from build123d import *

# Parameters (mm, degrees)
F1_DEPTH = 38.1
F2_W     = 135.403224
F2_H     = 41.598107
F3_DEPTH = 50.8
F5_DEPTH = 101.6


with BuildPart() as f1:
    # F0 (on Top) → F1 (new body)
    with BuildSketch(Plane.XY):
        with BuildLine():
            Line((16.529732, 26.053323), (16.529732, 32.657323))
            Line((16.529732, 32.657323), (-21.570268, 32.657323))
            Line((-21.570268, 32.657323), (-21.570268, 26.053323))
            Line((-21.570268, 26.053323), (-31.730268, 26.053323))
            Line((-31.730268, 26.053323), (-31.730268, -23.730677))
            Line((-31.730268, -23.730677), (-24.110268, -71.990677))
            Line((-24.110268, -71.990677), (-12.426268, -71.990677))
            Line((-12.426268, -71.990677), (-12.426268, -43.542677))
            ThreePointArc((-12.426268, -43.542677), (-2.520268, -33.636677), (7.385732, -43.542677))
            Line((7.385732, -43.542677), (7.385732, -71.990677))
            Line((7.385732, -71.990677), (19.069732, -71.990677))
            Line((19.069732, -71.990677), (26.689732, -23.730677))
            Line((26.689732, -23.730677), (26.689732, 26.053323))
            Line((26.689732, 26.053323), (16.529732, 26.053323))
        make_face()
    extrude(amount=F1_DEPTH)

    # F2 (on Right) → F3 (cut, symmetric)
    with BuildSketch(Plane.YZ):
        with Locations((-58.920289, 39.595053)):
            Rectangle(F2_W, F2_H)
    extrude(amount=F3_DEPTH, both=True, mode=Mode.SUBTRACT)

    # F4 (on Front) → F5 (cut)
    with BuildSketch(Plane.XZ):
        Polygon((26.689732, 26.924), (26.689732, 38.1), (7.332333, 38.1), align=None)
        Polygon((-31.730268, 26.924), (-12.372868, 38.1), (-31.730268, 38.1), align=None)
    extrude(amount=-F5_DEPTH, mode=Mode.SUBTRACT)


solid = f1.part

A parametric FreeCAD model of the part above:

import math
import FreeCAD as App
import Part
import Sketcher
Q = App.Units.Quantity

doc = App.newDocument("Part")
body = doc.addObject("PartDesign::Body", "Body")

sketch1 = body.newObject("Sketcher::SketchObject", "Sketch")
sketch1.AttachmentSupport = (doc.getObject("XY_Plane"), [""])
sketch1.MapMode = "FlatFace"
sketch1.addGeometry(Part.LineSegment(App.Vector(17, 26, 0), App.Vector(17, 33, 0)), False)
sketch1.addGeometry(Part.LineSegment(App.Vector(17, 33, 0), App.Vector(-22, 33, 0)), False)
sketch1.addGeometry(Part.LineSegment(App.Vector(-22, 33, 0), App.Vector(-22, 26, 0)), False)
sketch1.addGeometry(Part.LineSegment(App.Vector(-22, 26, 0), App.Vector(-32, 26, 0)), False)
sketch1.addGeometry(Part.LineSegment(App.Vector(-32, 26, 0), App.Vector(-32, -24, 0)), False)
sketch1.addGeometry(Part.LineSegment(App.Vector(-32, -24, 0), App.Vector(-24, -72, 0)), False)
sketch1.addGeometry(Part.LineSegment(App.Vector(-24, -72, 0), App.Vector(-12, -72, 0)), False)
sketch1.addGeometry(Part.LineSegment(App.Vector(-12, -72, 0), App.Vector(-12, -44, 0)), False)
sketch1.addGeometry(Part.ArcOfCircle(Part.Circle(App.Vector(-3, -44, 0), App.Vector(0, 0, 1), 10), math.radians(0), math.radians(180)), False)
sketch1.addGeometry(Part.LineSegment(App.Vector(7, -44, 0), App.Vector(7, -72, 0)), False)
sketch1.addGeometry(Part.LineSegment(App.Vector(7, -72, 0), App.Vector(19, -72, 0)), False)
sketch1.addGeometry(Part.LineSegment(App.Vector(19, -72, 0), App.Vector(27, -24, 0)), False)
sketch1.addGeometry(Part.LineSegment(App.Vector(27, -24, 0), App.Vector(27, 26, 0)), False)
sketch1.addGeometry(Part.LineSegment(App.Vector(27, 26, 0), App.Vector(17, 26, 0)), False)
sketch1.addConstraint(Sketcher.Constraint("Coincident", 0, 2, 1, 1))
sketch1.addConstraint(Sketcher.Constraint("Coincident", 1, 2, 2, 1))
sketch1.addConstraint(Sketcher.Constraint("Coincident", 2, 2, 3, 1))
sketch1.addConstraint(Sketcher.Constraint("Coincident", 3, 2, 4, 1))
sketch1.addConstraint(Sketcher.Constraint("Coincident", 4, 2, 5, 1))
sketch1.addConstraint(Sketcher.Constraint("Coincident", 5, 2, 6, 1))
sketch1.addConstraint(Sketcher.Constraint("Coincident", 6, 2, 7, 1))
sketch1.addConstraint(Sketcher.Constraint("Tangent", 7, 2, 8, 2))
sketch1.addConstraint(Sketcher.Constraint("Tangent", 8, 1, 9, 1))
sketch1.addConstraint(Sketcher.Constraint("Coincident", 9, 2, 10, 1))
sketch1.addConstraint(Sketcher.Constraint("Coincident", 10, 2, 11, 1))
sketch1.addConstraint(Sketcher.Constraint("Coincident", 11, 2, 12, 1))
sketch1.addConstraint(Sketcher.Constraint("Coincident", 12, 2, 13, 1))
sketch1.addConstraint(Sketcher.Constraint("Coincident", 13, 2, 0, 1))
sketch1.addConstraint(Sketcher.Constraint("Vertical", 0))
sketch1.addConstraint(Sketcher.Constraint("Horizontal", 1))
sketch1.addConstraint(Sketcher.Constraint("Vertical", 2))
sketch1.addConstraint(Sketcher.Constraint("Horizontal", 3))
sketch1.addConstraint(Sketcher.Constraint("Vertical", 4))
sketch1.addConstraint(Sketcher.Constraint("Horizontal", 6))
sketch1.addConstraint(Sketcher.Constraint("Vertical", 7))
sketch1.addConstraint(Sketcher.Constraint("Vertical", 9))
sketch1.addConstraint(Sketcher.Constraint("Horizontal", 10))
sketch1.addConstraint(Sketcher.Constraint("Vertical", 12))
sketch1.addConstraint(Sketcher.Constraint("Horizontal", 13))
sketch1.addConstraint(Sketcher.Constraint("Horizontal", 6, 2, 9, 2))
sketch1.addConstraint(Sketcher.Constraint("Horizontal", 4, 2, 11, 2))
sketch1.addConstraint(Sketcher.Constraint("Horizontal", 3, 2, 12, 2))
sketch1.addConstraint(Sketcher.Constraint("Equal", 6, 10))
sketch1.addConstraint(Sketcher.Constraint("Equal", 3, 13))
sketch1.addConstraint(Sketcher.Constraint("Equal", 5, 11))
sketch1.addConstraint(Sketcher.Constraint("Radius", 8, Q("0.39 in")))
sketch1.addConstraint(Sketcher.Constraint("DistanceX", 1, 2, 1, 1, Q("1.5 in")))
sketch1.addConstraint(Sketcher.Constraint("DistanceX", 3, 2, 3, 1, Q("0.4 in")))
sketch1.addConstraint(Sketcher.Constraint("DistanceY", 8, 3, 0, 2, Q("3 in")))
sketch1.addConstraint(Sketcher.Constraint("DistanceX", 6, 1, 6, 2, Q("0.46 in")))
sketch1.addConstraint(Sketcher.Constraint("DistanceY", 0, 1, 0, 2, Q("0.26 in")))
sketch1.addConstraint(Sketcher.Constraint("DistanceY", 4, 2, 4, 1, Q("1.96 in")))
sketch1.addConstraint(Sketcher.Constraint("DistanceY", 7, 1, 7, 2, Q("1.12 in")))
sketch1.addConstraint(Sketcher.Constraint("DistanceX", 8, 3, -1, 1, Q("2.520268 mm")))
sketch1.addConstraint(Sketcher.Constraint("DistanceY", 8, 3, -1, 1, Q("43.542677 mm")))
pad1 = body.newObject("PartDesign::Pad", "Pad")
pad1.Profile = sketch1
pad1.Length = Q("1.5 in")

sketch2 = body.newObject("Sketcher::SketchObject", "Sketch001")
sketch2.AttachmentSupport = (doc.getObject("YZ_Plane"), [""])
sketch2.MapMode = "FlatFace"
sketch2.addGeometry(Part.LineSegment(App.Vector(-127, 60, 0), App.Vector(-127, 19, 0)), False)
sketch2.addGeometry(Part.LineSegment(App.Vector(-127, 19, 0), App.Vector(9, 19, 0)), False)
sketch2.addGeometry(Part.LineSegment(App.Vector(9, 19, 0), App.Vector(9, 60, 0)), False)
sketch2.addGeometry(Part.LineSegment(App.Vector(9, 60, 0), App.Vector(-127, 60, 0)), False)
sketch2.addConstraint(Sketcher.Constraint("Coincident", 0, 2, 1, 1))
sketch2.addConstraint(Sketcher.Constraint("Coincident", 1, 2, 2, 1))
sketch2.addConstraint(Sketcher.Constraint("Coincident", 2, 2, 3, 1))
sketch2.addConstraint(Sketcher.Constraint("Coincident", 3, 2, 0, 1))
sketch2.addConstraint(Sketcher.Constraint("Vertical", 0))
sketch2.addConstraint(Sketcher.Constraint("Horizontal", 1))
sketch2.addConstraint(Sketcher.Constraint("Vertical", 2))
sketch2.addConstraint(Sketcher.Constraint("Horizontal", 3))
sketch2.addConstraint(Sketcher.Constraint("DistanceY", -1, 1, 0, 2, Q("0.74 in")))
sketch2.addConstraint(Sketcher.Constraint("DistanceX", 0, 2, -1, 1, Q("126.621901 mm")))
sketch2.addConstraint(Sketcher.Constraint("DistanceX", 1, 1, 1, 2, Q("135.403224 mm")))
sketch2.addConstraint(Sketcher.Constraint("DistanceY", 0, 2, 0, 1, Q("41.598107 mm")))
pocket1 = body.newObject("PartDesign::Pocket", "Pocket")
pocket1.Profile = sketch2
pocket1.Length = Q("4 in")
pocket1.Midplane = True

sketch3 = body.newObject("Sketcher::SketchObject", "Sketch002")
sketch3.AttachmentSupport = (doc.getObject("XZ_Plane"), [""])
sketch3.MapMode = "FlatFace"
sketch3.addGeometry(Part.LineSegment(App.Vector(27, 27, 0), App.Vector(27, 38, 0)), False)
sketch3.addGeometry(Part.LineSegment(App.Vector(27, 38, 0), App.Vector(7, 38, 0)), False)
sketch3.addGeometry(Part.LineSegment(App.Vector(7, 38, 0), App.Vector(27, 27, 0)), False)
sketch3.addGeometry(Part.LineSegment(App.Vector(-32, 27, 0), App.Vector(-12, 38, 0)), False)
sketch3.addGeometry(Part.LineSegment(App.Vector(-12, 38, 0), App.Vector(-32, 38, 0)), False)
sketch3.addGeometry(Part.LineSegment(App.Vector(-32, 38, 0), App.Vector(-32, 27, 0)), False)
sketch3.addConstraint(Sketcher.Constraint("Coincident", 0, 2, 1, 1))
sketch3.addConstraint(Sketcher.Constraint("Coincident", 1, 2, 2, 1))
sketch3.addConstraint(Sketcher.Constraint("Coincident", 2, 2, 0, 1))
sketch3.addConstraint(Sketcher.Constraint("Coincident", 3, 2, 4, 1))
sketch3.addConstraint(Sketcher.Constraint("Coincident", 4, 2, 5, 1))
sketch3.addConstraint(Sketcher.Constraint("Coincident", 5, 2, 3, 1))
sketch3.addConstraint(Sketcher.Constraint("Vertical", 0))
sketch3.addConstraint(Sketcher.Constraint("Horizontal", 1))
sketch3.addConstraint(Sketcher.Constraint("Horizontal", 4))
sketch3.addConstraint(Sketcher.Constraint("Vertical", 5))
sketch3.addConstraint(Sketcher.Constraint("Horizontal", 1, 2, 3, 2))
sketch3.addConstraint(Sketcher.Constraint("Horizontal", 2, 2, 5, 2))
sketch3.addConstraint(Sketcher.Constraint("Equal", 1, 4))
sketch3.addConstraint(Sketcher.Constraint("Angle", 2, Q("-30.000001 deg")))
sketch3.addConstraint(Sketcher.Constraint("DistanceY", 0, 1, 0, 2, Q("0.44 in")))
sketch3.addConstraint(Sketcher.Constraint("DistanceY", -1, 1, 0, 2, Q("1.5 in")))
sketch3.addConstraint(Sketcher.Constraint("DistanceX", 4, 2, 0, 2, Q("2.3 in")))
sketch3.addConstraint(Sketcher.Constraint("DistanceX", -1, 1, 0, 2, Q("26.689732 mm")))
pocket2 = body.newObject("PartDesign::Pocket", "Pocket001")
pocket2.Profile = sketch3
pocket2.Length = Q("4 in")

doc.recompute()
